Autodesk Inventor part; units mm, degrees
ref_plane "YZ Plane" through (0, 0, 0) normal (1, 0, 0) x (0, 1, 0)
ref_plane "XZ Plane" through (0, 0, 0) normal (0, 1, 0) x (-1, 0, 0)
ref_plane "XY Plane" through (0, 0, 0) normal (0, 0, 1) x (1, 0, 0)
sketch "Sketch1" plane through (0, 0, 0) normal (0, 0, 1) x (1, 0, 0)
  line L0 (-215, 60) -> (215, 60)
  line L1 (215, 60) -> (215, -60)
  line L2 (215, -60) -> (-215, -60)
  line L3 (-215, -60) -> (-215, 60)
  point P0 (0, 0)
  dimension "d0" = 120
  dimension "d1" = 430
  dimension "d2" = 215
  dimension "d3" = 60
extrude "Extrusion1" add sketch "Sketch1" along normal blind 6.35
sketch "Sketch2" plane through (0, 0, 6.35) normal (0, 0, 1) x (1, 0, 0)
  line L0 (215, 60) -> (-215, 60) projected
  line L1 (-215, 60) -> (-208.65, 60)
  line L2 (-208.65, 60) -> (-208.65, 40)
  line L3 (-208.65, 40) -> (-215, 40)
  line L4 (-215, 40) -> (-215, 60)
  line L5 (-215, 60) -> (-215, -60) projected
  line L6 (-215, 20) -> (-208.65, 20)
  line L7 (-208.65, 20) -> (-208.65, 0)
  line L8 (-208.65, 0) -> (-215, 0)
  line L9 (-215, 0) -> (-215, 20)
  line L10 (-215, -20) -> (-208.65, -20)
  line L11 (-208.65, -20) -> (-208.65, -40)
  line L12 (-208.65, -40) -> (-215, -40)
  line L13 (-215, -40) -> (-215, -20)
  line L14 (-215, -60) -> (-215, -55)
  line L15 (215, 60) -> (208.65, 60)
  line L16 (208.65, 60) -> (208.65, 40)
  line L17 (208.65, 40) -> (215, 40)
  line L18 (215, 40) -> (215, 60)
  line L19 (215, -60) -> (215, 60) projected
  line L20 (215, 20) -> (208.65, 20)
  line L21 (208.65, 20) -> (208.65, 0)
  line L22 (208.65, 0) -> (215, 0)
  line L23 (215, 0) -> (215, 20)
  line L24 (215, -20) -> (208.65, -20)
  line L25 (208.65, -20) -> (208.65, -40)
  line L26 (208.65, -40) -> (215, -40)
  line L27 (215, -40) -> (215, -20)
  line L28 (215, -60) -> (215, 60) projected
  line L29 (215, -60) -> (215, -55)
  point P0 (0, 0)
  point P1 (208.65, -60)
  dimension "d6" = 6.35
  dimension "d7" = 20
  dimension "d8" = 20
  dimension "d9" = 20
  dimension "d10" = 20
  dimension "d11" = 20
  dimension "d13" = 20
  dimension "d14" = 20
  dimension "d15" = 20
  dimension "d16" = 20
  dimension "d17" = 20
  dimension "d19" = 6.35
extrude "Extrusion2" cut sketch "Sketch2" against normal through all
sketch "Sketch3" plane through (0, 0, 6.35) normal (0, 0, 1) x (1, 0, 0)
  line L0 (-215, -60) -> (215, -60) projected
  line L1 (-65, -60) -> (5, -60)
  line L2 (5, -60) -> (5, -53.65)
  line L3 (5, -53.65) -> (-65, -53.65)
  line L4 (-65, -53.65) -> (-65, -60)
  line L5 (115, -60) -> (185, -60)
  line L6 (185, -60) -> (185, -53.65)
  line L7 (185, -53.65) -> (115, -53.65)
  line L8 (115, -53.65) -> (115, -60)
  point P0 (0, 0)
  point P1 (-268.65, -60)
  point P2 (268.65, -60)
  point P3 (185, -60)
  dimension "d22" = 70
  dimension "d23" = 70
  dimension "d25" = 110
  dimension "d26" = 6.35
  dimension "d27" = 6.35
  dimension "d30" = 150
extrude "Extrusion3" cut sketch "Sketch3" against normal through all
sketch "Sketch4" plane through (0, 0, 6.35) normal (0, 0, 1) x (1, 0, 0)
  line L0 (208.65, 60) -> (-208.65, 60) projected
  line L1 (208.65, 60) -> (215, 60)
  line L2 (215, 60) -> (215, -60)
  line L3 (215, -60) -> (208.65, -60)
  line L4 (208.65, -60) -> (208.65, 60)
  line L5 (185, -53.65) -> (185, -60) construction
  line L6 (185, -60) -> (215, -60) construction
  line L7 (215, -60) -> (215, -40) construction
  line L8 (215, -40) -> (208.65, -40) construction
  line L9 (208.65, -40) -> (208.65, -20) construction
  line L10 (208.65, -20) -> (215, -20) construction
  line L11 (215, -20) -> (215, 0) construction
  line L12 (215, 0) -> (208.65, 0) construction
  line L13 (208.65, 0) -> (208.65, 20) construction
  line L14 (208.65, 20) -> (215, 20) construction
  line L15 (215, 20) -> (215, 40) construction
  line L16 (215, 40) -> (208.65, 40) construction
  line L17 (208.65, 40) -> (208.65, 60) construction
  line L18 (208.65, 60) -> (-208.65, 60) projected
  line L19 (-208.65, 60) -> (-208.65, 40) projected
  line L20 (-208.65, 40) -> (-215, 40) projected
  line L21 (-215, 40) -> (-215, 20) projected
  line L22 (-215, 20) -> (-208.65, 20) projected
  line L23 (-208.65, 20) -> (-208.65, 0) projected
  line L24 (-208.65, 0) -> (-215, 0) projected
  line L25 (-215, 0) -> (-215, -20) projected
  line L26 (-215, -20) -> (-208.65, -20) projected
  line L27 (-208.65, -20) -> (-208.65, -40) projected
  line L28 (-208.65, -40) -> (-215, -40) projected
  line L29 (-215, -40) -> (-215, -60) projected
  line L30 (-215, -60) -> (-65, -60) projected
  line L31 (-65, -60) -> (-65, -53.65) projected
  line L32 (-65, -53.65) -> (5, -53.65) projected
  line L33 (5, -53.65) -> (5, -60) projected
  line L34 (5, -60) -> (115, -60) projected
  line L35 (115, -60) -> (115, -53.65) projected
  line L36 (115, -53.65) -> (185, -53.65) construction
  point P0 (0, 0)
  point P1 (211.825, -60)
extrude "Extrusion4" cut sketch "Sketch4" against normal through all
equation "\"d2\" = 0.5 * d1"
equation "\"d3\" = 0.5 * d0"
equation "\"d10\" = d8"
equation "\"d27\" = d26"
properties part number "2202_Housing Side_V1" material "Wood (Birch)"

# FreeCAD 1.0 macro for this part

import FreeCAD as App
import Part
import Sketcher
from FreeCAD import Vector
Q = App.Units.Quantity


def add_polygon(sketch, points):
    """Adds a closed chain of lines whose ends are joined by coincident constraints."""
    first, n = sketch.GeometryCount, len(points)
    for a, b in zip(points, points[1:] + points[:1]):
        sketch.addGeometry(Part.LineSegment(App.Vector(*a, 0), App.Vector(*b, 0)), False)
    for i in range(n):
        sketch.addConstraint(Sketcher.Constraint("Coincident", first + i, 2, first + (i + 1) % n, 1))

doc = App.newDocument("Part")
params = doc.addObject("Spreadsheet::Sheet", "Params")
for row, (alias, value) in enumerate([
    ("sketch1_width", "430 mm"),
    ("sketch1_height", "120 mm"),
    ("pad1_length", "6.35 mm"),
    ("sketch2_height", "20 mm"),
    ("sketch2_width", "6.35 mm"),
    ("sketch3_width", "70 mm"),
    ("sketch3_height", "6.35 mm"),
    ("sketch4_height", "120 mm"),
    ("sketch4_width", "6.35 mm"),
], start=1):
    params.set(f"A{row}", alias)
    params.set(f"B{row}", "=" + value)
    params.setAlias(f"B{row}", alias)

body = doc.addObject("PartDesign::Body", "Body")

# Sketch on XY plane
sketch1 = body.newObject("Sketcher::SketchObject", "Sketch")
sketch1.AttachmentSupport = (doc.getObject("XY_Plane"), [""])
sketch1.MapMode = "FlatFace"
add_polygon(sketch1, [(215, 60), (-215, 60), (-215, -60), (215, -60)])  # lines 0-3
sketch1.addConstraint([
    Sketcher.Constraint("Horizontal", 0),
    Sketcher.Constraint("Vertical", 1),
    Sketcher.Constraint("Horizontal", 2),
    Sketcher.Constraint("Vertical", 3),
    Sketcher.Constraint("Symmetric", 0, 2, 2, 2, -1, 1),
    Sketcher.Constraint("DistanceX", 0, 2, 0, 1, Q("430 mm")),
    Sketcher.Constraint("DistanceY", 1, 2, 1, 1, Q("120 mm")),
])
sketch1.setExpression("Constraints[9]", "Params.sketch1_width")
sketch1.setExpression("Constraints[10]", "Params.sketch1_height")
pad1 = body.newObject("PartDesign::Pad", "Pad")
pad1.Profile = sketch1
pad1.setExpression("Length", "Params.pad1_length")

# Sketch on XY plane
sketch2 = body.newObject("Sketcher::SketchObject", "Sketch001")
sketch2.AttachmentSupport = (doc.getObject("XY_Plane"), [""])
sketch2.MapMode = "FlatFace"
sketch2.AttachmentOffset = App.Placement(Vector(0, 0, 6.35), App.Rotation())
add_polygon(sketch2, [(215, 40), (215, 60), (209, 60), (209, 40)])  # lines 0-3
add_polygon(sketch2, [(215, -40), (215, -20), (209, -20), (209, -40)])  # lines 4-7
add_polygon(sketch2, [(215, 0), (215, 20), (209, 20), (209, 0)])  # lines 8-11
add_polygon(sketch2, [(-209, -20), (-215, -20), (-215, -40), (-209, -40)])  # lines 12-15
add_polygon(sketch2, [(-209, 20), (-215, 20), (-215, 0), (-209, 0)])  # lines 16-19
add_polygon(sketch2, [(-209, 40), (-209, 60), (-215, 60), (-215, 40)])  # lines 20-23
sketch2.addConstraint([
    Sketcher.Constraint("Vertical", 0),
    Sketcher.Constraint("Horizontal", 1),
    Sketcher.Constraint("Vertical", 2),
    Sketcher.Constraint("Horizontal", 3),
    Sketcher.Constraint("Vertical", 4),
    Sketcher.Constraint("Horizontal", 5),
    Sketcher.Constraint("Vertical", 6),
    Sketcher.Constraint("Horizontal", 7),
    Sketcher.Constraint("Vertical", 8),
    Sketcher.Constraint("Horizontal", 9),
    Sketcher.Constraint("Vertical", 10),
    Sketcher.Constraint("Horizontal", 11),
    Sketcher.Constraint("Horizontal", 12),
    Sketcher.Constraint("Vertical", 13),
    Sketcher.Constraint("Horizontal", 14),
    Sketcher.Constraint("Vertical", 15),
    Sketcher.Constraint("Horizontal", 16),
    Sketcher.Constraint("Vertical", 17),
    Sketcher.Constraint("Horizontal", 18),
    Sketcher.Constraint("Vertical", 19),
    Sketcher.Constraint("Vertical", 20),
    Sketcher.Constraint("Horizontal", 21),
    Sketcher.Constraint("Vertical", 22),
    Sketcher.Constraint("Horizontal", 23),
    Sketcher.Constraint("Symmetric", 8, 2, 12, 2, -1, 1),
    Sketcher.Constraint("Symmetric", 3, 2, 13, 2, -1, 1),
    Sketcher.Constraint("Symmetric", 4, 2, 16, 2, -1, 1),
    Sketcher.Constraint("Symmetric", 11, 2, 17, 2, -1, 1),
    Sketcher.Constraint("Symmetric", 7, 2, 22, 2, -1, 1),
    Sketcher.Constraint("Symmetric", 6, 2, 14, 2, -2),
    Sketcher.Constraint("Symmetric", 10, 2, 18, 2, -2),
    Sketcher.Constraint("Symmetric", 1, 2, 20, 2, -2),
    Sketcher.Constraint("Symmetric", 5, 2, 9, 2, -1),
    Sketcher.Constraint("Vertical", 2, 2, 5, 2),
    Sketcher.Constraint("Equal", 2, 4),
    Sketcher.Constraint("Equal", 6, 8),
    Sketcher.Constraint("DistanceY", 0, 1, 0, 2, Q("20 mm")),
    Sketcher.Constraint("DistanceX", 1, 2, 1, 1, Q("6.35 mm")),
    Sketcher.Constraint("DistanceX", -1, 1, 0, 2, Q("215 mm")),
])
sketch2.setExpression("Constraints[60]", "Params.sketch2_height")
sketch2.setExpression("Constraints[61]", "Params.sketch2_width")
pocket1 = body.newObject("PartDesign::Pocket", "Pocket")
pocket1.Profile = sketch2
pocket1.Type = "ThroughAll"

# Sketch on XY plane
sketch3 = body.newObject("Sketcher::SketchObject", "Sketch002")
sketch3.AttachmentSupport = (doc.getObject("XY_Plane"), [""])
sketch3.MapMode = "FlatFace"
sketch3.AttachmentOffset = App.Placement(Vector(0, 0, 6.35), App.Rotation())
add_polygon(sketch3, [(-65, -54), (-65, -60), (5, -60), (5, -54)])  # lines 0-3
add_polygon(sketch3, [(115, -54), (115, -60), (185, -60), (185, -54)])  # lines 4-7
sketch3.addConstraint([
    Sketcher.Constraint("Vertical", 0),
    Sketcher.Constraint("Horizontal", 1),
    Sketcher.Constraint("Vertical", 2),
    Sketcher.Constraint("Horizontal", 3),
    Sketcher.Constraint("Vertical", 4),
    Sketcher.Constraint("Horizontal", 5),
    Sketcher.Constraint("Vertical", 6),
    Sketcher.Constraint("Horizontal", 7),
    Sketcher.Constraint("Horizontal", 1, 2, 4, 2),
    Sketcher.Constraint("Horizontal", 3, 2, 6, 2),
    Sketcher.Constraint("Equal", 3, 5),
    Sketcher.Constraint("DistanceX", 1, 1, 1, 2, Q("70 mm")),
    Sketcher.Constraint("DistanceX", 1, 2, 4, 2, Q("110 mm")),
    Sketcher.Constraint("DistanceY", 0, 2, 0, 1, Q("6.35 mm")),
    Sketcher.Constraint("DistanceX", 0, 2, -1, 1, Q("65 mm")),
    Sketcher.Constraint("DistanceY", 0, 2, -1, 1, Q("60 mm")),
])
sketch3.setExpression("Constraints[19]", "Params.sketch3_width")
sketch3.setExpression("Constraints[21]", "Params.sketch3_height")
pocket2 = body.newObject("PartDesign::Pocket", "Pocket001")
pocket2.Profile = sketch3
pocket2.Type = "ThroughAll"

# Sketch on XY plane
sketch4 = body.newObject("Sketcher::SketchObject", "Sketch003")
sketch4.AttachmentSupport = (doc.getObject("XY_Plane"), [""])
sketch4.MapMode = "FlatFace"
sketch4.AttachmentOffset = App.Placement(Vector(0, 0, 6.35), App.Rotation())
add_polygon(sketch4, [(215, 60), (209, 60), (209, -60), (215, -60)])  # lines 0-3
sketch4.addConstraint([
    Sketcher.Constraint("Horizontal", 0),
    Sketcher.Constraint("Vertical", 1),
    Sketcher.Constraint("Horizontal", 2),
    Sketcher.Constraint("Vertical", 3),
    Sketcher.Constraint("DistanceY", 1, 2, 1, 1, Q("120 mm")),
    Sketcher.Constraint("DistanceY", -1, 1, 0, 2, Q("60 mm")),
    Sketcher.Constraint("DistanceX", -1, 1, 2, 2, Q("215 mm")),
    Sketcher.Constraint("DistanceX", 0, 2, 0, 1, Q("6.35 mm")),
])
sketch4.setExpression("Constraints[8]", "Params.sketch4_height")
sketch4.setExpression("Constraints[11]", "Params.sketch4_width")
pocket3 = body.newObject("PartDesign::Pocket", "Pocket002")
pocket3.Profile = sketch4
pocket3.Type = "ThroughAll"

doc.recompute()
